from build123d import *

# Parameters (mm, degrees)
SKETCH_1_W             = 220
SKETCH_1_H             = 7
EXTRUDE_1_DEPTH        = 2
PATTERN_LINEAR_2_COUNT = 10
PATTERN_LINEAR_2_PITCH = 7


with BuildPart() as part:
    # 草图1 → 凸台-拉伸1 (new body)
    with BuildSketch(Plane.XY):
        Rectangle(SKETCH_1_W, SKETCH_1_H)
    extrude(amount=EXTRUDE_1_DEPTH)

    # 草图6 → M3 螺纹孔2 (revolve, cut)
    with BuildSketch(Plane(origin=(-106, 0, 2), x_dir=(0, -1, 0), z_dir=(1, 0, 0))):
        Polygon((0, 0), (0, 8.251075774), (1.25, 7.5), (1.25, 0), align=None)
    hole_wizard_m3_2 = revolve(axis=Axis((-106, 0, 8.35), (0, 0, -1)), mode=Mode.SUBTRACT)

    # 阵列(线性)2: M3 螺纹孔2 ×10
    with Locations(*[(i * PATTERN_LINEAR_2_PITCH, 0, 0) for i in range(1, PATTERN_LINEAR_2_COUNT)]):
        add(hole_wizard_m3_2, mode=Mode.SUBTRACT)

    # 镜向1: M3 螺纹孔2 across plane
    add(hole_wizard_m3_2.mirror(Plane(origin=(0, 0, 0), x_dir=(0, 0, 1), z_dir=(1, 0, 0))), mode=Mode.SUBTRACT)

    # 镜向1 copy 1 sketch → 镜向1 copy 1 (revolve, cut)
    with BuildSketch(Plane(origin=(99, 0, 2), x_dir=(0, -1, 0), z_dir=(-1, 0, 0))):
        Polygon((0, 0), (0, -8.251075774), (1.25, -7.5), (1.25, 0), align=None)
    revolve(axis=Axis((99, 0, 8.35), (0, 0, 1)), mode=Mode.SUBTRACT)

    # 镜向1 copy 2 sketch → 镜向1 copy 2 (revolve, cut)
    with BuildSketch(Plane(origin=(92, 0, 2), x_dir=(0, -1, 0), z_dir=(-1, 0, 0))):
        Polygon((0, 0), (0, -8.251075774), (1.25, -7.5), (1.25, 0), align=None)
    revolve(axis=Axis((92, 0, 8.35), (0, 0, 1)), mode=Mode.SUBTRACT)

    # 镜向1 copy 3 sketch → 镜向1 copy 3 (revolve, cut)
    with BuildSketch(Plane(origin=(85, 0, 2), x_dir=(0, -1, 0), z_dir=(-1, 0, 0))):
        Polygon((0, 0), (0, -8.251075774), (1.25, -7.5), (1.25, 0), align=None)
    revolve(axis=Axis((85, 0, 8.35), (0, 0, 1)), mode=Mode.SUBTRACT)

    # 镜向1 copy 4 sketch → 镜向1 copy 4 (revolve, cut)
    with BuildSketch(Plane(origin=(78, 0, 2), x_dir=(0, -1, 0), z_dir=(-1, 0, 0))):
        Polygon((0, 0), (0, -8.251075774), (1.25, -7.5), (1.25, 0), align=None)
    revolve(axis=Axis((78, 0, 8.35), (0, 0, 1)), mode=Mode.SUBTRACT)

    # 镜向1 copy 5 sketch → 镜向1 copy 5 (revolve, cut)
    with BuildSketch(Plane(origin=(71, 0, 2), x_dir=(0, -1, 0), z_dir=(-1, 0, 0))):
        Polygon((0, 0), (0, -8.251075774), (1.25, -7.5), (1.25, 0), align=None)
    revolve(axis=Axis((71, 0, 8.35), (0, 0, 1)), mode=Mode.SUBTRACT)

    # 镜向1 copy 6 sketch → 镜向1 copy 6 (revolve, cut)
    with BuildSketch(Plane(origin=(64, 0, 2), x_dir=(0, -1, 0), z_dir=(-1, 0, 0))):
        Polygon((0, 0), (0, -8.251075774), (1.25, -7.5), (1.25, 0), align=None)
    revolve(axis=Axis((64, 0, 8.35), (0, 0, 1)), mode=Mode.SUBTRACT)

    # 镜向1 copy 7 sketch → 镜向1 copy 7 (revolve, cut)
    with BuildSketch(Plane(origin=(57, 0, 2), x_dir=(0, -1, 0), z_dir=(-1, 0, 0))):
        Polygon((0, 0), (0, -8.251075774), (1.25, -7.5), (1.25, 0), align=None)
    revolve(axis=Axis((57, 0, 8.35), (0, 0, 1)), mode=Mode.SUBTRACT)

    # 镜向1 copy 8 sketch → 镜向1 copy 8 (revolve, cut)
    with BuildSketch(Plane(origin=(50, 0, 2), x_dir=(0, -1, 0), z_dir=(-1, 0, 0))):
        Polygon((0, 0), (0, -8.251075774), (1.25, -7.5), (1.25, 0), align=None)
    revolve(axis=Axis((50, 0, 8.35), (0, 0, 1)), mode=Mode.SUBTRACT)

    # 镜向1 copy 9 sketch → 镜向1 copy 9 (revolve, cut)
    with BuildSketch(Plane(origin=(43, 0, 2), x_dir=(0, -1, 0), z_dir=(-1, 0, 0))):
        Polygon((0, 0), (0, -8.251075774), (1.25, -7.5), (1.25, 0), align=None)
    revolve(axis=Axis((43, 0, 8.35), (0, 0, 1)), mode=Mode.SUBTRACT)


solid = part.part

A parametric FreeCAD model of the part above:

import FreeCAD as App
import Part
import Sketcher
Q = App.Units.Quantity

doc = App.newDocument("Part")
body = doc.addObject("PartDesign::Body", "Body")

# Sketch on XY plane
sketch1 = doc.addObject("Sketcher::SketchObject", "Sketch")
body.addObject(sketch1)
sketch1.AttachmentSupport = (doc.XY_Plane, [""])
sketch1.MapMode = "FlatFace"
sketch1.addGeometry(Part.LineSegment(App.Vector(-110, 4, 0), App.Vector(-110, -4, 0)), False)
sketch1.addGeometry(Part.LineSegment(App.Vector(-110, -4, 0), App.Vector(110, -4, 0)), False)
sketch1.addGeometry(Part.LineSegment(App.Vector(110, -4, 0), App.Vector(110, 4, 0)), False)
sketch1.addGeometry(Part.LineSegment(App.Vector(110, 4, 0), App.Vector(-110, 4, 0)), False)
sketch1.addConstraint(Sketcher.Constraint("Coincident", 0, 2, 1, 1))
sketch1.addConstraint(Sketcher.Constraint("Coincident", 1, 2, 2, 1))
sketch1.addConstraint(Sketcher.Constraint("Coincident", 2, 2, 3, 1))
sketch1.addConstraint(Sketcher.Constraint("Coincident", 3, 2, 0, 1))
sketch1.addConstraint(Sketcher.Constraint("Vertical", 0))
sketch1.addConstraint(Sketcher.Constraint("Horizontal", 1))
sketch1.addConstraint(Sketcher.Constraint("Vertical", 2))
sketch1.addConstraint(Sketcher.Constraint("Horizontal", 3))
sketch1.addConstraint(Sketcher.Constraint("Symmetric", 0, 2, 2, 2, -1, 1))
sketch1.addConstraint(Sketcher.Constraint("DistanceX", 1, 1, 1, 2, Q("220 mm")))
sketch1.addConstraint(Sketcher.Constraint("DistanceY", 0, 2, 0, 1, Q("7 mm")))
pad1 = doc.addObject("PartDesign::Pad", "Pad")
body.addObject(pad1)
pad1.Profile = sketch1
pad1.Length = 2

# Sketch on YZ plane
sketch2 = doc.addObject("Sketcher::SketchObject", "Sketch001")
body.addObject(sketch2)
sketch2.AttachmentSupport = (doc.YZ_Plane, [""])
sketch2.MapMode = "FlatFace"
sketch2.AttachmentOffset = App.Placement(App.Vector(0, 0, -106), App.Rotation())
sketch2.addGeometry(Part.LineSegment(App.Vector(0, -6.3, 0), App.Vector(0, 2, 0)), False)
sketch2.addGeometry(Part.LineSegment(App.Vector(0, 2, 0), App.Vector(-1.2, 2, 0)), False)
sketch2.addGeometry(Part.LineSegment(App.Vector(-1.2, 2, 0), App.Vector(-1.2, -5.5, 0)), False)
sketch2.addGeometry(Part.LineSegment(App.Vector(-1.2, -5.5, 0), App.Vector(0, -6.3, 0)), False)
sketch2.addConstraint(Sketcher.Constraint("Coincident", 0, 2, 1, 1))
sketch2.addConstraint(Sketcher.Constraint("Coincident", 1, 2, 2, 1))
sketch2.addConstraint(Sketcher.Constraint("Coincident", 2, 2, 3, 1))
sketch2.addConstraint(Sketcher.Constraint("Coincident", 3, 2, 0, 1))
sketch2.addConstraint(Sketcher.Constraint("Vertical", 0))
sketch2.addConstraint(Sketcher.Constraint("Horizontal", 1))
sketch2.addConstraint(Sketcher.Constraint("Vertical", 2))
sketch2.addConstraint(Sketcher.Constraint("PointOnObject", 0, 2, -2))
sketch2.addConstraint(Sketcher.Constraint("Angle", 3, Q("-31 deg")))
sketch2.addConstraint(Sketcher.Constraint("DistanceY", 2, 2, 2, 1, Q("7.5 mm")))
sketch2.addConstraint(Sketcher.Constraint("DistanceY", -1, 1, 0, 2, Q("2 mm")))
sketch2.addConstraint(Sketcher.Constraint("DistanceX", 1, 2, 1, 1, Q("1.25 mm")))
groove = doc.addObject("PartDesign::Groove", "Groove")
body.addObject(groove)
groove.Profile = sketch2
groove.ReferenceAxis = (sketch2, ["V_Axis"])
groove.Angle = 360
doc.recompute()

linearpattern = doc.addObject("PartDesign::LinearPattern", "LinearPattern")
body.addObject(linearpattern)
linearpattern.Originals = [groove]
linearpattern.Direction = (doc.X_Axis, [""])
linearpattern.Mode = "offset"
linearpattern.Offset = 7
linearpattern.Occurrences = 10
body.Tip = linearpattern
doc.recompute()

mirrored = doc.addObject("PartDesign::Mirrored", "Mirrored")
body.addObject(mirrored)
mirrored.Originals = [groove]
mirrored.MirrorPlane = (doc.YZ_Plane, [""])
body.Tip = mirrored

# Sketch on YZ plane
sketch3 = doc.addObject("Sketcher::SketchObject", "Sketch002")
body.addObject(sketch3)
sketch3.AttachmentSupport = (doc.YZ_Plane, [""])
sketch3.MapMode = "FlatFace"
sketch3.AttachmentOffset = App.Placement(App.Vector(0, 0, 99), App.Rotation())
sketch3.addGeometry(Part.LineSegment(App.Vector(0, 2, 0), App.Vector(0, -6.3, 0)), False)
sketch3.addGeometry(Part.LineSegment(App.Vector(0, -6.3, 0), App.Vector(-1.2, -5.5, 0)), False)
sketch3.addGeometry(Part.LineSegment(App.Vector(-1.2, -5.5, 0), App.Vector(-1.2, 2, 0)), False)
sketch3.addGeometry(Part.LineSegment(App.Vector(-1.2, 2, 0), App.Vector(0, 2, 0)), False)
sketch3.addConstraint(Sketcher.Constraint("Coincident", 0, 2, 1, 1))
sketch3.addConstraint(Sketcher.Constraint("Coincident", 1, 2, 2, 1))
sketch3.addConstraint(Sketcher.Constraint("Coincident", 2, 2, 3, 1))
sketch3.addConstraint(Sketcher.Constraint("Coincident", 3, 2, 0, 1))
sketch3.addConstraint(Sketcher.Constraint("Vertical", 0))
sketch3.addConstraint(Sketcher.Constraint("Vertical", 2))
sketch3.addConstraint(Sketcher.Constraint("Horizontal", 3))
sketch3.addConstraint(Sketcher.Constraint("PointOnObject", 0, 2, -2))
sketch3.addConstraint(Sketcher.Constraint("Angle", 1, Q("149 deg")))
sketch3.addConstraint(Sketcher.Constraint("DistanceY", 2, 1, 2, 2, Q("7.5 mm")))
sketch3.addConstraint(Sketcher.Constraint("DistanceY", -1, 1, 2, 2, Q("2 mm")))
sketch3.addConstraint(Sketcher.Constraint("DistanceX", 3, 1, 3, 2, Q("1.25 mm")))
groove2 = doc.addObject("PartDesign::Groove", "Groove001")
body.addObject(groove2)
groove2.Profile = sketch3
groove2.ReferenceAxis = (sketch3, ["V_Axis"])
groove2.Angle = 360

# Sketch on YZ plane
sketch4 = doc.addObject("Sketcher::SketchObject", "Sketch003")
body.addObject(sketch4)
sketch4.AttachmentSupport = (doc.YZ_Plane, [""])
sketch4.MapMode = "FlatFace"
sketch4.AttachmentOffset = App.Placement(App.Vector(0, 0, 92), App.Rotation())
sketch4.addGeometry(Part.LineSegment(App.Vector(0, 2, 0), App.Vector(0, -6.3, 0)), False)
sketch4.addGeometry(Part.LineSegment(App.Vector(0, -6.3, 0), App.Vector(-1.2, -5.5, 0)), False)
sketch4.addGeometry(Part.LineSegment(App.Vector(-1.2, -5.5, 0), App.Vector(-1.2, 2, 0)), False)
sketch4.addGeometry(Part.LineSegment(App.Vector(-1.2, 2, 0), App.Vector(0, 2, 0)), False)
sketch4.addConstraint(Sketcher.Constraint("Coincident", 0, 2, 1, 1))
sketch4.addConstraint(Sketcher.Constraint("Coincident", 1, 2, 2, 1))
sketch4.addConstraint(Sketcher.Constraint("Coincident", 2, 2, 3, 1))
sketch4.addConstraint(Sketcher.Constraint("Coincident", 3, 2, 0, 1))
sketch4.addConstraint(Sketcher.Constraint("Vertical", 0))
sketch4.addConstraint(Sketcher.Constraint("Vertical", 2))
sketch4.addConstraint(Sketcher.Constraint("Horizontal", 3))
sketch4.addConstraint(Sketcher.Constraint("PointOnObject", 0, 2, -2))
sketch4.addConstraint(Sketcher.Constraint("Angle", 1, Q("149 deg")))
sketch4.addConstraint(Sketcher.Constraint("DistanceY", 2, 1, 2, 2, Q("7.5 mm")))
sketch4.addConstraint(Sketcher.Constraint("DistanceY", -1, 1, 2, 2, Q("2 mm")))
sketch4.addConstraint(Sketcher.Constraint("DistanceX", 3, 1, 3, 2, Q("1.25 mm")))
groove3 = doc.addObject("PartDesign::Groove", "Groove002")
body.addObject(groove3)
groove3.Profile = sketch4
groove3.ReferenceAxis = (sketch4, ["V_Axis"])
groove3.Angle = 360

# Sketch on YZ plane
sketch5 = doc.addObject("Sketcher::SketchObject", "Sketch004")
body.addObject(sketch5)
sketch5.AttachmentSupport = (doc.YZ_Plane, [""])
sketch5.MapMode = "FlatFace"
sketch5.AttachmentOffset = App.Placement(App.Vector(0, 0, 85), App.Rotation())
sketch5.addGeometry(Part.LineSegment(App.Vector(0, 2, 0), App.Vector(0, -6.3, 0)), False)
sketch5.addGeometry(Part.LineSegment(App.Vector(0, -6.3, 0), App.Vector(-1.2, -5.5, 0)), False)
sketch5.addGeometry(Part.LineSegment(App.Vector(-1.2, -5.5, 0), App.Vector(-1.2, 2, 0)), False)
sketch5.addGeometry(Part.LineSegment(App.Vector(-1.2, 2, 0), App.Vector(0, 2, 0)), False)
sketch5.addConstraint(Sketcher.Constraint("Coincident", 0, 2, 1, 1))
sketch5.addConstraint(Sketcher.Constraint("Coincident", 1, 2, 2, 1))
sketch5.addConstraint(Sketcher.Constraint("Coincident", 2, 2, 3, 1))
sketch5.addConstraint(Sketcher.Constraint("Coincident", 3, 2, 0, 1))
sketch5.addConstraint(Sketcher.Constraint("Vertical", 0))
sketch5.addConstraint(Sketcher.Constraint("Vertical", 2))
sketch5.addConstraint(Sketcher.Constraint("Horizontal", 3))
sketch5.addConstraint(Sketcher.Constraint("PointOnObject", 0, 2, -2))
sketch5.addConstraint(Sketcher.Constraint("Angle", 1, Q("149 deg")))
sketch5.addConstraint(Sketcher.Constraint("DistanceY", 2, 1, 2, 2, Q("7.5 mm")))
sketch5.addConstraint(Sketcher.Constraint("DistanceY", -1, 1, 2, 2, Q("2 mm")))
sketch5.addConstraint(Sketcher.Constraint("DistanceX", 3, 1, 3, 2, Q("1.25 mm")))
groove4 = doc.addObject("PartDesign::Groove", "Groove003")
body.addObject(groove4)
groove4.Profile = sketch5
groove4.ReferenceAxis = (sketch5, ["V_Axis"])
groove4.Angle = 360

# Sketch on YZ plane
sketch6 = doc.addObject("Sketcher::SketchObject", "Sketch005")
body.addObject(sketch6)
sketch6.AttachmentSupport = (doc.YZ_Plane, [""])
sketch6.MapMode = "FlatFace"
sketch6.AttachmentOffset = App.Placement(App.Vector(0, 0, 78), App.Rotation())
sketch6.addGeometry(Part.LineSegment(App.Vector(0, 2, 0), App.Vector(0, -6.3, 0)), False)
sketch6.addGeometry(Part.LineSegment(App.Vector(0, -6.3, 0), App.Vector(-1.2, -5.5, 0)), False)
sketch6.addGeometry(Part.LineSegment(App.Vector(-1.2, -5.5, 0), App.Vector(-1.2, 2, 0)), False)
sketch6.addGeometry(Part.LineSegment(App.Vector(-1.2, 2, 0), App.Vector(0, 2, 0)), False)
sketch6.addConstraint(Sketcher.Constraint("Coincident", 0, 2, 1, 1))
sketch6.addConstraint(Sketcher.Constraint("Coincident", 1, 2, 2, 1))
sketch6.addConstraint(Sketcher.Constraint("Coincident", 2, 2, 3, 1))
sketch6.addConstraint(Sketcher.Constraint("Coincident", 3, 2, 0, 1))
sketch6.addConstraint(Sketcher.Constraint("Vertical", 0))
sketch6.addConstraint(Sketcher.Constraint("Vertical", 2))
sketch6.addConstraint(Sketcher.Constraint("Horizontal", 3))
sketch6.addConstraint(Sketcher.Constraint("PointOnObject", 0, 2, -2))
sketch6.addConstraint(Sketcher.Constraint("Angle", 1, Q("149 deg")))
sketch6.addConstraint(Sketcher.Constraint("DistanceY", 2, 1, 2, 2, Q("7.5 mm")))
sketch6.addConstraint(Sketcher.Constraint("DistanceY", -1, 1, 2, 2, Q("2 mm")))
sketch6.addConstraint(Sketcher.Constraint("DistanceX", 3, 1, 3, 2, Q("1.25 mm")))
groove5 = doc.addObject("PartDesign::Groove", "Groove004")
body.addObject(groove5)
groove5.Profile = sketch6
groove5.ReferenceAxis = (sketch6, ["V_Axis"])
groove5.Angle = 360

# Sketch on YZ plane
sketch7 = doc.addObject("Sketcher::SketchObject", "Sketch006")
body.addObject(sketch7)
sketch7.AttachmentSupport = (doc.YZ_Plane, [""])
sketch7.MapMode = "FlatFace"
sketch7.AttachmentOffset = App.Placement(App.Vector(0, 0, 71), App.Rotation())
sketch7.addGeometry(Part.LineSegment(App.Vector(0, 2, 0), App.Vector(0, -6.3, 0)), False)
sketch7.addGeometry(Part.LineSegment(App.Vector(0, -6.3, 0), App.Vector(-1.2, -5.5, 0)), False)
sketch7.addGeometry(Part.LineSegment(App.Vector(-1.2, -5.5, 0), App.Vector(-1.2, 2, 0)), False)
sketch7.addGeometry(Part.LineSegment(App.Vector(-1.2, 2, 0), App.Vector(0, 2, 0)), False)
sketch7.addConstraint(Sketcher.Constraint("Coincident", 0, 2, 1, 1))
sketch7.addConstraint(Sketcher.Constraint("Coincident", 1, 2, 2, 1))
sketch7.addConstraint(Sketcher.Constraint("Coincident", 2, 2, 3, 1))
sketch7.addConstraint(Sketcher.Constraint("Coincident", 3, 2, 0, 1))
sketch7.addConstraint(Sketcher.Constraint("Vertical", 0))
sketch7.addConstraint(Sketcher.Constraint("Vertical", 2))
sketch7.addConstraint(Sketcher.Constraint("Horizontal", 3))
sketch7.addConstraint(Sketcher.Constraint("PointOnObject", 0, 2, -2))
sketch7.addConstraint(Sketcher.Constraint("Angle", 1, Q("149 deg")))
sketch7.addConstraint(Sketcher.Constraint("DistanceY", 2, 1, 2, 2, Q("7.5 mm")))
sketch7.addConstraint(Sketcher.Constraint("DistanceY", -1, 1, 2, 2, Q("2 mm")))
sketch7.addConstraint(Sketcher.Constraint("DistanceX", 3, 1, 3, 2, Q("1.25 mm")))
groove6 = doc.addObject("PartDesign::Groove", "Groove005")
body.addObject(groove6)
groove6.Profile = sketch7
groove6.ReferenceAxis = (sketch7, ["V_Axis"])
groove6.Angle = 360

# Sketch on YZ plane
sketch8 = doc.addObject("Sketcher::SketchObject", "Sketch007")
body.addObject(sketch8)
sketch8.AttachmentSupport = (doc.YZ_Plane, [""])
sketch8.MapMode = "FlatFace"
sketch8.AttachmentOffset = App.Placement(App.Vector(0, 0, 64), App.Rotation())
sketch8.addGeometry(Part.LineSegment(App.Vector(0, 2, 0), App.Vector(0, -6.3, 0)), False)
sketch8.addGeometry(Part.LineSegment(App.Vector(0, -6.3, 0), App.Vector(-1.2, -5.5, 0)), False)
sketch8.addGeometry(Part.LineSegment(App.Vector(-1.2, -5.5, 0), App.Vector(-1.2, 2, 0)), False)
sketch8.addGeometry(Part.LineSegment(App.Vector(-1.2, 2, 0), App.Vector(0, 2, 0)), False)
sketch8.addConstraint(Sketcher.Constraint("Coincident", 0, 2, 1, 1))
sketch8.addConstraint(Sketcher.Constraint("Coincident", 1, 2, 2, 1))
sketch8.addConstraint(Sketcher.Constraint("Coincident", 2, 2, 3, 1))
sketch8.addConstraint(Sketcher.Constraint("Coincident", 3, 2, 0, 1))
sketch8.addConstraint(Sketcher.Constraint("Vertical", 0))
sketch8.addConstraint(Sketcher.Constraint("Vertical", 2))
sketch8.addConstraint(Sketcher.Constraint("Horizontal", 3))
sketch8.addConstraint(Sketcher.Constraint("PointOnObject", 0, 2, -2))
sketch8.addConstraint(Sketcher.Constraint("Angle", 1, Q("149 deg")))
sketch8.addConstraint(Sketcher.Constraint("DistanceY", 2, 1, 2, 2, Q("7.5 mm")))
sketch8.addConstraint(Sketcher.Constraint("DistanceY", -1, 1, 2, 2, Q("2 mm")))
sketch8.addConstraint(Sketcher.Constraint("DistanceX", 3, 1, 3, 2, Q("1.25 mm")))
groove7 = doc.addObject("PartDesign::Groove", "Groove006")
body.addObject(groove7)
groove7.Profile = sketch8
groove7.ReferenceAxis = (sketch8, ["V_Axis"])
groove7.Angle = 360

# Sketch on YZ plane
sketch9 = doc.addObject("Sketcher::SketchObject", "Sketch008")
body.addObject(sketch9)
sketch9.AttachmentSupport = (doc.YZ_Plane, [""])
sketch9.MapMode = "FlatFace"
sketch9.AttachmentOffset = App.Placement(App.Vector(0, 0, 57), App.Rotation())
sketch9.addGeometry(Part.LineSegment(App.Vector(0, 2, 0), App.Vector(0, -6.3, 0)), False)
sketch9.addGeometry(Part.LineSegment(App.Vector(0, -6.3, 0), App.Vector(-1.2, -5.5, 0)), False)
sketch9.addGeometry(Part.LineSegment(App.Vector(-1.2, -5.5, 0), App.Vector(-1.2, 2, 0)), False)
sketch9.addGeometry(Part.LineSegment(App.Vector(-1.2, 2, 0), App.Vector(0, 2, 0)), False)
sketch9.addConstraint(Sketcher.Constraint("Coincident", 0, 2, 1, 1))
sketch9.addConstraint(Sketcher.Constraint("Coincident", 1, 2, 2, 1))
sketch9.addConstraint(Sketcher.Constraint("Coincident", 2, 2, 3, 1))
sketch9.addConstraint(Sketcher.Constraint("Coincident", 3, 2, 0, 1))
sketch9.addConstraint(Sketcher.Constraint("Vertical", 0))
sketch9.addConstraint(Sketcher.Constraint("Vertical", 2))
sketch9.addConstraint(Sketcher.Constraint("Horizontal", 3))
sketch9.addConstraint(Sketcher.Constraint("PointOnObject", 0, 2, -2))
sketch9.addConstraint(Sketcher.Constraint("Angle", 1, Q("149 deg")))
sketch9.addConstraint(Sketcher.Constraint("DistanceY", 2, 1, 2, 2, Q("7.5 mm")))
sketch9.addConstraint(Sketcher.Constraint("DistanceY", -1, 1, 2, 2, Q("2 mm")))
sketch9.addConstraint(Sketcher.Constraint("DistanceX", 3, 1, 3, 2, Q("1.25 mm")))
groove8 = doc.addObject("PartDesign::Groove", "Groove007")
body.addObject(groove8)
groove8.Profile = sketch9
groove8.ReferenceAxis = (sketch9, ["V_Axis"])
groove8.Angle = 360

# Sketch on YZ plane
sketch10 = doc.addObject("Sketcher::SketchObject", "Sketch009")
body.addObject(sketch10)
sketch10.AttachmentSupport = (doc.YZ_Plane, [""])
sketch10.MapMode = "FlatFace"
sketch10.AttachmentOffset = App.Placement(App.Vector(0, 0, 50), App.Rotation())
sketch10.addGeometry(Part.LineSegment(App.Vector(0, 2, 0), App.Vector(0, -6.3, 0)), False)
sketch10.addGeometry(Part.LineSegment(App.Vector(0, -6.3, 0), App.Vector(-1.2, -5.5, 0)), False)
sketch10.addGeometry(Part.LineSegment(App.Vector(-1.2, -5.5, 0), App.Vector(-1.2, 2, 0)), False)
sketch10.addGeometry(Part.LineSegment(App.Vector(-1.2, 2, 0), App.Vector(0, 2, 0)), False)
sketch10.addConstraint(Sketcher.Constraint("Coincident", 0, 2, 1, 1))
sketch10.addConstraint(Sketcher.Constraint("Coincident", 1, 2, 2, 1))
sketch10.addConstraint(Sketcher.Constraint("Coincident", 2, 2, 3, 1))
sketch10.addConstraint(Sketcher.Constraint("Coincident", 3, 2, 0, 1))
sketch10.addConstraint(Sketcher.Constraint("Vertical", 0))
sketch10.addConstraint(Sketcher.Constraint("Vertical", 2))
sketch10.addConstraint(Sketcher.Constraint("Horizontal", 3))
sketch10.addConstraint(Sketcher.Constraint("PointOnObject", 0, 2, -2))
sketch10.addConstraint(Sketcher.Constraint("Angle", 1, Q("149 deg")))
sketch10.addConstraint(Sketcher.Constraint("DistanceY", 2, 1, 2, 2, Q("7.5 mm")))
sketch10.addConstraint(Sketcher.Constraint("DistanceY", -1, 1, 2, 2, Q("2 mm")))
sketch10.addConstraint(Sketcher.Constraint("DistanceX", 3, 1, 3, 2, Q("1.25 mm")))
groove9 = doc.addObject("PartDesign::Groove", "Groove008")
body.addObject(groove9)
groove9.Profile = sketch10
groove9.ReferenceAxis = (sketch10, ["V_Axis"])
groove9.Angle = 360

# Sketch on YZ plane
sketch11 = doc.addObject("Sketcher::SketchObject", "Sketch010")
body.addObject(sketch11)
sketch11.AttachmentSupport = (doc.YZ_Plane, [""])
sketch11.MapMode = "FlatFace"
sketch11.AttachmentOffset = App.Placement(App.Vector(0, 0, 43), App.Rotation())
sketch11.addGeometry(Part.LineSegment(App.Vector(0, 2, 0), App.Vector(0, -6.3, 0)), False)
sketch11.addGeometry(Part.LineSegment(App.Vector(0, -6.3, 0), App.Vector(-1.2, -5.5, 0)), False)
sketch11.addGeometry(Part.LineSegment(App.Vector(-1.2, -5.5, 0), App.Vector(-1.2, 2, 0)), False)
sketch11.addGeometry(Part.LineSegment(App.Vector(-1.2, 2, 0), App.Vector(0, 2, 0)), False)
sketch11.addConstraint(Sketcher.Constraint("Coincident", 0, 2, 1, 1))
sketch11.addConstraint(Sketcher.Constraint("Coincident", 1, 2, 2, 1))
sketch11.addConstraint(Sketcher.Constraint("Coincident", 2, 2, 3, 1))
sketch11.addConstraint(Sketcher.Constraint("Coincident", 3, 2, 0, 1))
sketch11.addConstraint(Sketcher.Constraint("Vertical", 0))
sketch11.addConstraint(Sketcher.Constraint("Vertical", 2))
sketch11.addConstraint(Sketcher.Constraint("Horizontal", 3))
sketch11.addConstraint(Sketcher.Constraint("PointOnObject", 0, 2, -2))
sketch11.addConstraint(Sketcher.Constraint("Angle", 1, Q("149 deg")))
sketch11.addConstraint(Sketcher.Constraint("DistanceY", 2, 1, 2, 2, Q("7.5 mm")))
sketch11.addConstraint(Sketcher.Constraint("DistanceY", -1, 1, 2, 2, Q("2 mm")))
sketch11.addConstraint(Sketcher.Constraint("DistanceX", 3, 1, 3, 2, Q("1.25 mm")))
groove10 = doc.addObject("PartDesign::Groove", "Groove009")
body.addObject(groove10)
groove10.Profile = sketch11
groove10.ReferenceAxis = (sketch11, ["V_Axis"])
groove10.Angle = 360

doc.recompute()
